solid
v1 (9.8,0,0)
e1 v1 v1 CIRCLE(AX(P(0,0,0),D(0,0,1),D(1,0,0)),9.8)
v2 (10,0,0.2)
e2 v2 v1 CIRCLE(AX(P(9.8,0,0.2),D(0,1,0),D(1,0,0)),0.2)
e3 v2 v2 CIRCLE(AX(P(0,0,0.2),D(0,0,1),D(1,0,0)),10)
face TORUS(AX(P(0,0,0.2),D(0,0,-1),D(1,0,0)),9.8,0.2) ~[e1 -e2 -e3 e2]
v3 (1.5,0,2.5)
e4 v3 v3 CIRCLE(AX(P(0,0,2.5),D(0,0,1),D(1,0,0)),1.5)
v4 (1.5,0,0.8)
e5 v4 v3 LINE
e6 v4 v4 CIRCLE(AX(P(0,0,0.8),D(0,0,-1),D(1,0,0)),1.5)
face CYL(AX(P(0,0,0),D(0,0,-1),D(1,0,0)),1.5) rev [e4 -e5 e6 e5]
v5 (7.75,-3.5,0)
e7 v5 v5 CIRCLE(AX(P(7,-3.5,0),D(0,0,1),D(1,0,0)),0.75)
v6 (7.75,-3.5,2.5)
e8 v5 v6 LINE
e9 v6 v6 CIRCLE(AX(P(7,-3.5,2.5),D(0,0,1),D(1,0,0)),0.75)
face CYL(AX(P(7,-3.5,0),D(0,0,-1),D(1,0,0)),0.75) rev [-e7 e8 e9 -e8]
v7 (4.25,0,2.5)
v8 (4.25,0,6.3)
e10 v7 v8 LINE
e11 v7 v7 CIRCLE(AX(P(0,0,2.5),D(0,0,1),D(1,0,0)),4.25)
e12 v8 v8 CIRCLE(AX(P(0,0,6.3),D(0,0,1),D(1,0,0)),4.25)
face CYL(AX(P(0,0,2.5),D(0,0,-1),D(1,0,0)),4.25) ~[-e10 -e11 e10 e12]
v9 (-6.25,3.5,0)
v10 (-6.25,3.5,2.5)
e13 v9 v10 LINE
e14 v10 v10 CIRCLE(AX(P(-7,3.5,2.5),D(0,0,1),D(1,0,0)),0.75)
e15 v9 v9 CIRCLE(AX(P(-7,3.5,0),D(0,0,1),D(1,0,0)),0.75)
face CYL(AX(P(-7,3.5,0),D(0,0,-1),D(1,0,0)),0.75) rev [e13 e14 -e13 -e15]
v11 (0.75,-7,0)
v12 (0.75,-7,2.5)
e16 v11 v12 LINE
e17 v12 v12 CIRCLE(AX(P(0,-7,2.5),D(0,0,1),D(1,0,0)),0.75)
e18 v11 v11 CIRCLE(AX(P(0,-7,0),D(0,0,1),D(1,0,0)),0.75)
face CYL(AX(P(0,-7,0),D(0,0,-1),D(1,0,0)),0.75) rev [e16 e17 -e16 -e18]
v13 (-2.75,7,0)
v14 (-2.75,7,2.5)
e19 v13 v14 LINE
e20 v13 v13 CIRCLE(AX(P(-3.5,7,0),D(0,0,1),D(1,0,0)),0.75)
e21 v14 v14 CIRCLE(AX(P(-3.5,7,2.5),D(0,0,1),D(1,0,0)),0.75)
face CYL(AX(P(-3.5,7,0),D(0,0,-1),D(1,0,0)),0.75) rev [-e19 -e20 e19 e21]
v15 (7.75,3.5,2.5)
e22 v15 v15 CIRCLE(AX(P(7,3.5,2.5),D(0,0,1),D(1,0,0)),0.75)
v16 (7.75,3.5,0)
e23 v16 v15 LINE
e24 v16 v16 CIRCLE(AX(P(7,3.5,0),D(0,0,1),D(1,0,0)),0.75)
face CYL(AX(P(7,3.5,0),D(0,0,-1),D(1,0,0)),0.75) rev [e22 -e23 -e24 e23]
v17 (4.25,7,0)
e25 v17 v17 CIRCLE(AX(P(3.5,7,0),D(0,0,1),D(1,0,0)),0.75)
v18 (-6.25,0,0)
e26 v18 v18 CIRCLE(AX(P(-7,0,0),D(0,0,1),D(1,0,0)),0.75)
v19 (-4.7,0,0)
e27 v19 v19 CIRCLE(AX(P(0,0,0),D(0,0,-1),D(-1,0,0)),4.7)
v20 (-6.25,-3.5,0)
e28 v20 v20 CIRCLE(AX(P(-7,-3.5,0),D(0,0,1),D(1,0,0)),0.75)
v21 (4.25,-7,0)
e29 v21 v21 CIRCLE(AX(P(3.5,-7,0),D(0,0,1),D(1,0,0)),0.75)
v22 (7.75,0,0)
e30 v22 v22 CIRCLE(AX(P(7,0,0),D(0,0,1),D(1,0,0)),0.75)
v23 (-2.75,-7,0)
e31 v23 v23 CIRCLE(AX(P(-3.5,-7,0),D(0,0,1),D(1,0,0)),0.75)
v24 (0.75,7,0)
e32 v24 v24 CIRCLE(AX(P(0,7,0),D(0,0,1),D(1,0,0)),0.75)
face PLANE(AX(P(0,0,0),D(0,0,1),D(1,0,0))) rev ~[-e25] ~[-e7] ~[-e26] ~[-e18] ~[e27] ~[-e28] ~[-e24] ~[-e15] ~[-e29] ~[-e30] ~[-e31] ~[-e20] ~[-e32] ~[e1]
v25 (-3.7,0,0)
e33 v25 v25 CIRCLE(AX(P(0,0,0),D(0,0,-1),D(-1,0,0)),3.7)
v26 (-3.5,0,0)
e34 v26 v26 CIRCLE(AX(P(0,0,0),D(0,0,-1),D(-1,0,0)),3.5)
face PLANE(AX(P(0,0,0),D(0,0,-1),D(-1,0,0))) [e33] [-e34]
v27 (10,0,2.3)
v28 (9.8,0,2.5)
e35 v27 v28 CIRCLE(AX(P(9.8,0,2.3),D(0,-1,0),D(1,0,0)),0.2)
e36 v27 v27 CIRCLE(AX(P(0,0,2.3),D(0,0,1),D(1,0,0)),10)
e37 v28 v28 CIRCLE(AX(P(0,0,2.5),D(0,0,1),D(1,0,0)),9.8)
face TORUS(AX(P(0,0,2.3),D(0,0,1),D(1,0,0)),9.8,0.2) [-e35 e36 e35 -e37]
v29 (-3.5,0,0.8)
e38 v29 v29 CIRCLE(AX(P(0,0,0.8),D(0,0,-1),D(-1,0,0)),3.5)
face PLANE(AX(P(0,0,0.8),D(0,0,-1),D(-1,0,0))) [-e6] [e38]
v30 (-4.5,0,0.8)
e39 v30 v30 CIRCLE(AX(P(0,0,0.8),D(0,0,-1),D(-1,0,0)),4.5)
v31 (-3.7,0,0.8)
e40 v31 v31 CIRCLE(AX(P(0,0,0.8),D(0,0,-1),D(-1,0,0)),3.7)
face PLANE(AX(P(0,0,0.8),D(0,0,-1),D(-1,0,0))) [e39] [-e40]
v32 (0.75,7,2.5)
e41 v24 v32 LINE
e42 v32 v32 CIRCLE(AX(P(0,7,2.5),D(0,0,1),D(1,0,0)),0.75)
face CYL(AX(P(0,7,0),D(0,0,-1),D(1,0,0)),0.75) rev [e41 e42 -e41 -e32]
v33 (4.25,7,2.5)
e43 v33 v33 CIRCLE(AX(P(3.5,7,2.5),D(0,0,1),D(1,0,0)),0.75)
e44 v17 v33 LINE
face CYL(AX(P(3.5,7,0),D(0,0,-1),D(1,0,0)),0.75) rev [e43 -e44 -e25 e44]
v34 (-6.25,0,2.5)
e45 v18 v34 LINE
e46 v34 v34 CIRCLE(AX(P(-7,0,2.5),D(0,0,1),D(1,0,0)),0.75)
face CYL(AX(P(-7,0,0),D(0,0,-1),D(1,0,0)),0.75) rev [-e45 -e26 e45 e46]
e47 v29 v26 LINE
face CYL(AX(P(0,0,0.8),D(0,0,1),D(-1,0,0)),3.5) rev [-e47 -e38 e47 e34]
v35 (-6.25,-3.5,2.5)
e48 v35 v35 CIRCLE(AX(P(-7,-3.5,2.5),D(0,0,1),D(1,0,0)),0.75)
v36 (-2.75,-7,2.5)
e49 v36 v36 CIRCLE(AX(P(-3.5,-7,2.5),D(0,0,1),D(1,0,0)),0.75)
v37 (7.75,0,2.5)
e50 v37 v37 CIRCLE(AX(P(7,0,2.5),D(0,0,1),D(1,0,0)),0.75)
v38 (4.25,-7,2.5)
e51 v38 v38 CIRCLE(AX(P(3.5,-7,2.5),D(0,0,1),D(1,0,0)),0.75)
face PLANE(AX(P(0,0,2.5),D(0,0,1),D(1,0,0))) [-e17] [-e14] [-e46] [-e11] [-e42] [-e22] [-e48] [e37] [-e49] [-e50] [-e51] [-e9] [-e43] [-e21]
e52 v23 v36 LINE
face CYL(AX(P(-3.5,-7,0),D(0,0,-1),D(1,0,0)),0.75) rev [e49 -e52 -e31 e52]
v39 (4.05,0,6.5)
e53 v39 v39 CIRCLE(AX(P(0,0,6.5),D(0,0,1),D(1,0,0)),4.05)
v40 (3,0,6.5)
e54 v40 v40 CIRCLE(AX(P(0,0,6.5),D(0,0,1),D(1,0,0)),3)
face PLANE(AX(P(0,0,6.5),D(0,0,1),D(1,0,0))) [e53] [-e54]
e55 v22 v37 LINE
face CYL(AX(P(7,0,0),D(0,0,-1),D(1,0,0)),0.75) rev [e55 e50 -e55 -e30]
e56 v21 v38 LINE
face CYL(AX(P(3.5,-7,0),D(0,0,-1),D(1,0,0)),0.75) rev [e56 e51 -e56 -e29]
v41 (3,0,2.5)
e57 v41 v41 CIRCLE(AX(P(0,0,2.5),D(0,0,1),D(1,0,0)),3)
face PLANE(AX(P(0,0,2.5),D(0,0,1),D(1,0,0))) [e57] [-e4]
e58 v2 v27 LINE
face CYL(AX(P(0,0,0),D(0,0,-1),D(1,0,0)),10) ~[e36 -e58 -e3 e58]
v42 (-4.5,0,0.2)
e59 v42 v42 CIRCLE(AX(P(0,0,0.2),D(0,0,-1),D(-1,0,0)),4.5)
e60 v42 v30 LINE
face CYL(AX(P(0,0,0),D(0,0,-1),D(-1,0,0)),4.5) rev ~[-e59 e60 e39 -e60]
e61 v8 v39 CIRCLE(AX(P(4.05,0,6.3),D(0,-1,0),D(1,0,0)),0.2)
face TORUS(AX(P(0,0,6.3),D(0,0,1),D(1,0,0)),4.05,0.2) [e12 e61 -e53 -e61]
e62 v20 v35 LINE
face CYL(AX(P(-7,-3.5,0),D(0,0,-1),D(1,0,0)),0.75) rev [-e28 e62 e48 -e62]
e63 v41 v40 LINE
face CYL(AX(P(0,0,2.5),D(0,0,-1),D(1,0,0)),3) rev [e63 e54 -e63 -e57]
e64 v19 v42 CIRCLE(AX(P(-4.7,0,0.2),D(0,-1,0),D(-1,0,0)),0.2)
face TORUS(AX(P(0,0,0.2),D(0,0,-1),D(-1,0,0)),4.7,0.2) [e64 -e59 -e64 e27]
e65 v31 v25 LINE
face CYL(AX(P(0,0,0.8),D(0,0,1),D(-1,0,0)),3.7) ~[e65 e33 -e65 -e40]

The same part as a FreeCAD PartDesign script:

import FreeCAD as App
import Part
import Sketcher

V = App.Vector
Q = App.Units.Quantity


def edges_at(feature, points):
    """Names of the edges that pass closest to the given points."""
    edges = feature.Shape.Edges
    near = lambda p: min(range(len(edges)), key=lambda i: edges[i].distToShape(Part.Vertex(*p))[0])
    return sorted({f"Edge{near(p) + 1}" for p in points})

doc = App.newDocument("Part")
body = doc.addObject("PartDesign::Body", "Body")

# Sketch on XY plane
sketch1 = doc.addObject("Sketcher::SketchObject", "Sketch")
body.addObject(sketch1)
sketch1.AttachmentSupport = (doc.XY_Plane, [""])
sketch1.MapMode = "FlatFace"
sketch1.addGeometry([
    Part.Circle(V(0, 0, 0), V(0, 0, 1), 10),  # 0
    Part.Circle(V(-3.5, -7, 0), V(0, 0, 1), 0.8),  # 1
    Part.Circle(V(-7, -3.5, 0), V(0, 0, 1), 0.8),  # 2
    Part.Circle(V(0, -7, 0), V(0, 0, 1), 0.8),  # 3
    Part.Circle(V(3.5, -7, 0), V(0, 0, 1), 0.8),  # 4
    Part.Circle(V(7, -3.5, 0), V(0, 0, 1), 0.8),  # 5
    Part.Circle(V(-7, 0, 0), V(0, 0, 1), 0.8),  # 6
    Part.Circle(V(-7, 3.5, 0), V(0, 0, 1), 0.8),  # 7
    Part.Circle(V(-3.5, 7, 0), V(0, 0, 1), 0.8),  # 8
    Part.Circle(V(0, 0, 0), V(0, 0, 1), 1.5),  # 9
    Part.Circle(V(7, 0, 0), V(0, 0, 1), 0.8),  # 10
    Part.Circle(V(7, 3.5, 0), V(0, 0, 1), 0.8),  # 11
    Part.Circle(V(0, 7, 0), V(0, 0, 1), 0.8),  # 12
    Part.Circle(V(3.5, 7, 0), V(0, 0, 1), 0.8),  # 13
], False)
sketch1.addConstraint([
    Sketcher.Constraint("Coincident", 0, 3, -1, 1),
    Sketcher.Constraint("Coincident", 9, 3, -1, 1),
    Sketcher.Constraint("Equal", 1, 2),
    Sketcher.Constraint("Equal", 2, 3),
    Sketcher.Constraint("Equal", 3, 4),
    Sketcher.Constraint("Equal", 4, 5),
    Sketcher.Constraint("Equal", 5, 6),
    Sketcher.Constraint("Equal", 6, 7),
    Sketcher.Constraint("Equal", 7, 8),
    Sketcher.Constraint("Equal", 8, 10),
    Sketcher.Constraint("Equal", 10, 11),
    Sketcher.Constraint("Equal", 11, 12),
    Sketcher.Constraint("Equal", 12, 13),
    Sketcher.Constraint("Symmetric", 5, 3, 7, 3, -1, 1),
    Sketcher.Constraint("Symmetric", 4, 3, 8, 3, -1, 1),
    Sketcher.Constraint("Symmetric", 6, 3, 10, 3, -1, 1),
    Sketcher.Constraint("Symmetric", 2, 3, 11, 3, -1, 1),
    Sketcher.Constraint("Symmetric", 3, 3, 12, 3, -1, 1),
    Sketcher.Constraint("Symmetric", 1, 3, 13, 3, -1, 1),
    Sketcher.Constraint("Symmetric", 1, 3, 4, 3, -2),
    Sketcher.Constraint("Symmetric", 2, 3, 5, 3, -2),
    Sketcher.Constraint("PointOnObject", 3, 3, -2),
    Sketcher.Constraint("PointOnObject", 6, 3, -1),
    Sketcher.Constraint("Horizontal", 1, 3, 3, 3),
    Sketcher.Constraint("Vertical", 2, 3, 6, 3),
    Sketcher.Constraint("Diameter", 0, Q("20 mm")),
    Sketcher.Constraint("Diameter", 9, Q("3 mm")),
    Sketcher.Constraint("Diameter", 1, Q("1.5 mm")),
    Sketcher.Constraint("DistanceY", 1, 3, -1, 1, Q("7 mm")),
    Sketcher.Constraint("DistanceX", 2, 3, -1, 1, Q("7 mm")),
    Sketcher.Constraint("DistanceX", 1, 3, 4, 3, Q("7 mm")),
    Sketcher.Constraint("DistanceY", 2, 3, 7, 3, Q("7 mm")),
])
pad1 = doc.addObject("PartDesign::Pad", "Pad")
body.addObject(pad1)
pad1.Profile = sketch1
pad1.Length = 2.5

# Sketch on XY plane
sketch2 = doc.addObject("Sketcher::SketchObject", "Sketch001")
body.addObject(sketch2)
sketch2.AttachmentSupport = (doc.XY_Plane, [""])
sketch2.MapMode = "FlatFace"
sketch2.AttachmentOffset = App.Placement(V(0, 0, 2.5), App.Rotation())
sketch2.addGeometry([
    Part.Circle(V(0, 0, 0), V(0, 0, 1), 4.2),
    Part.Circle(V(0, 0, 0), V(0, 0, 1), 3),
], False)
sketch2.addConstraint([
    Sketcher.Constraint("Coincident", 0, 3, -1, 1),
    Sketcher.Constraint("Coincident", 1, 3, -1, 1),
    Sketcher.Constraint("Diameter", 1, Q("6 mm")),
    Sketcher.Constraint("Diameter", 0, Q("8.5 mm")),
])
pad2 = doc.addObject("PartDesign::Pad", "Pad001")
body.addObject(pad2)
pad2.Profile = sketch2
pad2.Length = 4

# Sketch on XY plane
sketch3 = doc.addObject("Sketcher::SketchObject", "Sketch002")
body.addObject(sketch3)
sketch3.AttachmentSupport = (doc.XY_Plane, [""])
sketch3.MapMode = "FlatFace"
sketch3.addGeometry(Part.Circle(V(0, 0, 0), V(0, 0, 1), 4.5), False)
sketch3.addConstraint([
    Sketcher.Constraint("Coincident", 0, 3, -1, 1),
    Sketcher.Constraint("Diameter", 0, Q("9 mm")),
])
pocket1 = doc.addObject("PartDesign::Pocket", "Pocket")
body.addObject(pocket1)
pocket1.Profile = sketch3
pocket1.Length = 0.8
pocket1.Reversed = True

# Sketch on XY plane
sketch4 = doc.addObject("Sketcher::SketchObject", "Sketch003")
body.addObject(sketch4)
sketch4.AttachmentSupport = (doc.XY_Plane, [""])
sketch4.MapMode = "FlatFace"
sketch4.AttachmentOffset = App.Placement(V(0, 0, 0.8), App.Rotation())
sketch4.addGeometry([
    Part.Circle(V(0, 0, 0), V(0, 0, 1), 3.7),
    Part.Circle(V(0, 0, 0), V(0, 0, 1), 3.5),
], False)
sketch4.addConstraint([
    Sketcher.Constraint("Coincident", 0, 3, -1, 1),
    Sketcher.Constraint("Coincident", 1, 3, -1, 1),
    Sketcher.Constraint("Diameter", 1, Q("7 mm")),
    Sketcher.Constraint("Diameter", 0, Q("7.4 mm")),
])
pad3 = doc.addObject("PartDesign::Pad", "Pad002")
body.addObject(pad3)
pad3.Profile = sketch4
pad3.Length = 0.8
pad3.Reversed = True
doc.recompute()

fillet = doc.addObject("PartDesign::Fillet", "Fillet")
body.addObject(fillet)
fillet.Base = (pad3, edges_at(pad3, [
    (-10, 0, 0),
    (-10, 0, 2.5),
    (-4.25, 0, 6.5),
    (4.5, 0, 0),
]))
fillet.Radius = 0.2

doc.recompute()
